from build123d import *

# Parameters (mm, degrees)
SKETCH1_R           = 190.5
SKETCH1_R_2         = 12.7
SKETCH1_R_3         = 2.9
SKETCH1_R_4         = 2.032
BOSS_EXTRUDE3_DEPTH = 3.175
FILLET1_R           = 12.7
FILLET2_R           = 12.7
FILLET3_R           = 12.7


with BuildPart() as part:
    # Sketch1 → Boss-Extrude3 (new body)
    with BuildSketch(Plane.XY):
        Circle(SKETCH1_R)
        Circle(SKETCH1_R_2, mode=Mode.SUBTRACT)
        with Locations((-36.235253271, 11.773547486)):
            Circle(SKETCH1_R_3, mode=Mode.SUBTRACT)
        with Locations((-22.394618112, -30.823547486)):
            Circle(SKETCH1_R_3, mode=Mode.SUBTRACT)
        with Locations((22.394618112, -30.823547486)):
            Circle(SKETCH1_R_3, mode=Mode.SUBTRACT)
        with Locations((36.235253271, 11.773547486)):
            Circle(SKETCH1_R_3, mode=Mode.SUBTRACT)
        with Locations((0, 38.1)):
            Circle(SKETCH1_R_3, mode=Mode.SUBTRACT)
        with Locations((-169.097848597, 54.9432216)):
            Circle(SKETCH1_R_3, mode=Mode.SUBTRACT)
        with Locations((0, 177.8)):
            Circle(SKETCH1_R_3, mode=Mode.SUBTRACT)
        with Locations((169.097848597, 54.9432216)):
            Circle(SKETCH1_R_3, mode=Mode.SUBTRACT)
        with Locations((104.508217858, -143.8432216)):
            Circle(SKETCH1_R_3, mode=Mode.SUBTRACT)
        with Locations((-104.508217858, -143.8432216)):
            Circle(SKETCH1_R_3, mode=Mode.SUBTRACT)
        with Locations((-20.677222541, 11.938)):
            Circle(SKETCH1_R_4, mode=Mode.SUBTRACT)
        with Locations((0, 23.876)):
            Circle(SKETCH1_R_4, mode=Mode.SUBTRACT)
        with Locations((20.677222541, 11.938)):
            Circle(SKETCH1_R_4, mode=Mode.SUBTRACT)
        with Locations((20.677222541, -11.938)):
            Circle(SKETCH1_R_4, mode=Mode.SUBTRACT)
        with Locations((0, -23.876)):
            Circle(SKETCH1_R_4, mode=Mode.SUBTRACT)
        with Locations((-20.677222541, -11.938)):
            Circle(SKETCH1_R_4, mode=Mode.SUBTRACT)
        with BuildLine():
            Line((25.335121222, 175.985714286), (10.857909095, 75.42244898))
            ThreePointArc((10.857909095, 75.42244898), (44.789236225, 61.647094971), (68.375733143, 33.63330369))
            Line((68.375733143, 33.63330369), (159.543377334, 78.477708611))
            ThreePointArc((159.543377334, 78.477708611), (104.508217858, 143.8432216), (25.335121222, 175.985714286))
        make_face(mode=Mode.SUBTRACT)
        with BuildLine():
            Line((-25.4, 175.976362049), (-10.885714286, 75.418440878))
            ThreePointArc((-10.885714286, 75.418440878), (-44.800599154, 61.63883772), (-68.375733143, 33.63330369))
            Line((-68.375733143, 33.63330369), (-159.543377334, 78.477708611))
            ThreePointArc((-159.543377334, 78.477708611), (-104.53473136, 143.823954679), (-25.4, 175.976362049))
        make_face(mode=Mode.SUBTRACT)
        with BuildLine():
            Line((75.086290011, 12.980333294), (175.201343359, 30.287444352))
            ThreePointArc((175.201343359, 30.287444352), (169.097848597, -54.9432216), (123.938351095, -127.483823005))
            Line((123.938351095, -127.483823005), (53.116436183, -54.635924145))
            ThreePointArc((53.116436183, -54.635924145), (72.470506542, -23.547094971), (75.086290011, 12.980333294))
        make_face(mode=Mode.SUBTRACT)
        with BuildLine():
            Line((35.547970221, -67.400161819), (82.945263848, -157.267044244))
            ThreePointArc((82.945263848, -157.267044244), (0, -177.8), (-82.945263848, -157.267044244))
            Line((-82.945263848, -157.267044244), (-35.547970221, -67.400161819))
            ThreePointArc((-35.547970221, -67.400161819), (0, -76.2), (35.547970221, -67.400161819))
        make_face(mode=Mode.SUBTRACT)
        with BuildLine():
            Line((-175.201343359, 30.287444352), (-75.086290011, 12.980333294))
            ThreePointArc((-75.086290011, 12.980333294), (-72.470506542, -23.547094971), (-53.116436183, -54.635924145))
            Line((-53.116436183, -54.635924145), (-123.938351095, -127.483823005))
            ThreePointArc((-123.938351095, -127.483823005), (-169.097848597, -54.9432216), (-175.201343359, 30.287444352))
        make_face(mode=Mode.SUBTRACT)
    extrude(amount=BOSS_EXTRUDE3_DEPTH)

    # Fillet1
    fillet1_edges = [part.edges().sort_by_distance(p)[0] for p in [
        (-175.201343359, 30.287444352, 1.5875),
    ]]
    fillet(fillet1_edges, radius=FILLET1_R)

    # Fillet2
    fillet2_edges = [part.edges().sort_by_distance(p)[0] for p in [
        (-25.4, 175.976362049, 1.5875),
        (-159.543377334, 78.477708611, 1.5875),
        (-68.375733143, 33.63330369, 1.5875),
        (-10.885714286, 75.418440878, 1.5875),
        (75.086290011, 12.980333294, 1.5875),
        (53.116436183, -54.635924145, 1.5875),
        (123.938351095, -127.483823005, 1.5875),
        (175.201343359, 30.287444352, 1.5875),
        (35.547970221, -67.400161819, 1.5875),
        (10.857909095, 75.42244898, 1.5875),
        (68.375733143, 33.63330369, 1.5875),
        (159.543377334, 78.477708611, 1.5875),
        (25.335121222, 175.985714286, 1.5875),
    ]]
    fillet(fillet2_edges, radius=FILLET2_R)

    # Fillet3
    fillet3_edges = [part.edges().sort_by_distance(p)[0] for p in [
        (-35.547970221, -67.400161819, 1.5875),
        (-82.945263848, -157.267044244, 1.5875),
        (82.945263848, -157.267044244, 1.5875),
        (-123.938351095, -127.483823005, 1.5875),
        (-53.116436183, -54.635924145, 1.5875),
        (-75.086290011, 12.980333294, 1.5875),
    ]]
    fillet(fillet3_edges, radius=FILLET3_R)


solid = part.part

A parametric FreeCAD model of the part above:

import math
import FreeCAD as App
import Part
import Sketcher

V = App.Vector
Q = App.Units.Quantity


def edges_at(feature, points):
    """Names of the edges that pass closest to the given points."""
    edges = feature.Shape.Edges
    near = lambda p: min(range(len(edges)), key=lambda i: edges[i].distToShape(Part.Vertex(*p))[0])
    return sorted({f"Edge{near(p) + 1}" for p in points})

doc = App.newDocument("Part")
body = doc.addObject("PartDesign::Body", "Body")

# Sketch on XY plane
sketch1 = doc.addObject("Sketcher::SketchObject", "Sketch")
body.addObject(sketch1)
sketch1.AttachmentSupport = (doc.XY_Plane, [""])
sketch1.MapMode = "FlatFace"
sketch1.addGeometry([
    Part.Circle(V(0, 0, 0), V(0, 0, 1), 190.5),  # 0
    Part.Circle(V(-104.5, -143.8, 0), V(0, 0, 1), 2.9),  # 1
    Part.ArcOfCircle(Part.Circle(V(0, 0, 0), V(0, 0, 1), 76.2), math.radians(-118), math.radians(-62)),  # 2
    Part.LineSegment(V(35.5, -67.4, 0), V(82.9, -157.3, 0)),  # 3
    Part.ArcOfCircle(Part.Circle(V(0, 0, 0), V(0, 0, 1), 177.8), math.radians(-118), math.radians(-62)),  # 4
    Part.LineSegment(V(-82.9, -157.3, 0), V(-35.5, -67.4, 0)),  # 5
    Part.ArcOfCircle(Part.Circle(V(0, 0, 0), V(0, 0, 1), 177.8), math.radians(170), math.radians(226)),  # 6
    Part.LineSegment(V(-175.2, 30.3, 0), V(-75.1, 13, 0)),  # 7
    Part.ArcOfCircle(Part.Circle(V(0, 0, 0), V(0, 0, 1), 76.2), math.radians(170), math.radians(226)),  # 8
    Part.LineSegment(V(-53.1, -54.6, 0), V(-123.9, -127.5, 0)),  # 9
    Part.Circle(V(-22.4, -30.8, 0), V(0, 0, 1), 2.9),  # 10
    Part.Circle(V(0, -23.9, 0), V(0, 0, 1), 2),  # 11
    Part.Circle(V(-20.7, -11.9, 0), V(0, 0, 1), 2),  # 12
    Part.Circle(V(0, 0, 0), V(0, 0, 1), 12.7),  # 13
    Part.Circle(V(104.5, -143.8, 0), V(0, 0, 1), 2.9),  # 14
    Part.Circle(V(22.4, -30.8, 0), V(0, 0, 1), 2.9),  # 15
    Part.Circle(V(20.7, -11.9, 0), V(0, 0, 1), 2),  # 16
    Part.ArcOfCircle(Part.Circle(V(0, 0, 0), V(0, 0, 1), 76.2), math.radians(-46), math.radians(10)),  # 17
    Part.LineSegment(V(75.1, 13, 0), V(175.2, 30.3, 0)),  # 18
    Part.ArcOfCircle(Part.Circle(V(0, 0, 0), V(0, 0, 1), 177.8), math.radians(-46), math.radians(10)),  # 19
    Part.LineSegment(V(123.9, -127.5, 0), V(53.1, -54.6, 0)),  # 20
    Part.Circle(V(-169.1, 54.9, 0), V(0, 0, 1), 2.9),  # 21
    Part.Circle(V(-36.2, 11.8, 0), V(0, 0, 1), 2.9),  # 22
    Part.Circle(V(-20.7, 11.9, 0), V(0, 0, 1), 2),  # 23
    Part.Circle(V(0, 23.9, 0), V(0, 0, 1), 2),  # 24
    Part.Circle(V(0, 38.1, 0), V(0, 0, 1), 2.9),  # 25
    Part.ArcOfCircle(Part.Circle(V(0, 0, 0), V(0, 0, 1), 177.8), math.radians(98), math.radians(154)),  # 26
    Part.LineSegment(V(-25.4, 176, 0), V(-10.9, 75.4, 0)),  # 27
    Part.ArcOfCircle(Part.Circle(V(0, 0, 0), V(0, 0, 1), 76.2), math.radians(98), math.radians(154)),  # 28
    Part.LineSegment(V(-68.4, 33.6, 0), V(-159.5, 78.5, 0)),  # 29
    Part.Circle(V(0, 177.8, 0), V(0, 0, 1), 2.9),  # 30
    Part.Circle(V(20.7, 11.9, 0), V(0, 0, 1), 2),  # 31
    Part.Circle(V(36.2, 11.8, 0), V(0, 0, 1), 2.9),  # 32
    Part.Circle(V(169.1, 54.9, 0), V(0, 0, 1), 2.9),  # 33
    Part.LineSegment(V(10.9, 75.4, 0), V(25.3, 176, 0)),  # 34
    Part.ArcOfCircle(Part.Circle(V(0, 0, 0), V(0, 0, 1), 177.8), math.radians(26), math.radians(82)),  # 35
    Part.LineSegment(V(159.5, 78.5, 0), V(68.4, 33.6, 0)),  # 36
    Part.ArcOfCircle(Part.Circle(V(0, 0, 0), V(0, 0, 1), 76.2), math.radians(26), math.radians(82)),  # 37
], False)
sketch1.addConstraint([
    Sketcher.Constraint("Coincident", 2, 2, 3, 1),
    Sketcher.Constraint("Coincident", 3, 2, 4, 2),
    Sketcher.Constraint("Coincident", 4, 1, 5, 1),
    Sketcher.Constraint("Coincident", 5, 2, 2, 1),
    Sketcher.Constraint("Coincident", 6, 1, 7, 1),
    Sketcher.Constraint("Coincident", 7, 2, 8, 1),
    Sketcher.Constraint("Coincident", 8, 2, 9, 1),
    Sketcher.Constraint("Coincident", 9, 2, 6, 2),
    Sketcher.Constraint("Coincident", 17, 2, 18, 1),
    Sketcher.Constraint("Coincident", 18, 2, 19, 2),
    Sketcher.Constraint("Coincident", 19, 1, 20, 1),
    Sketcher.Constraint("Coincident", 20, 2, 17, 1),
    Sketcher.Constraint("Coincident", 26, 1, 27, 1),
    Sketcher.Constraint("Coincident", 27, 2, 28, 1),
    Sketcher.Constraint("Coincident", 28, 2, 29, 1),
    Sketcher.Constraint("Coincident", 29, 2, 26, 2),
    Sketcher.Constraint("Coincident", 34, 2, 35, 2),
    Sketcher.Constraint("Coincident", 35, 1, 36, 1),
    Sketcher.Constraint("Coincident", 36, 2, 37, 1),
    Sketcher.Constraint("Coincident", 37, 2, 34, 1),
    Sketcher.Constraint("Coincident", 0, 3, -1, 1),
    Sketcher.Constraint("Coincident", 2, 3, -1, 1),
    Sketcher.Constraint("Coincident", 4, 3, -1, 1),
    Sketcher.Constraint("Coincident", 6, 3, -1, 1),
    Sketcher.Constraint("Coincident", 8, 3, -1, 1),
    Sketcher.Constraint("Coincident", 13, 3, -1, 1),
    Sketcher.Constraint("Coincident", 17, 3, -1, 1),
    Sketcher.Constraint("Coincident", 19, 3, -1, 1),
    Sketcher.Constraint("Coincident", 26, 3, -1, 1),
    Sketcher.Constraint("Coincident", 28, 3, -1, 1),
    Sketcher.Constraint("Coincident", 35, 3, -1, 1),
    Sketcher.Constraint("Coincident", 37, 3, -1, 1),
    Sketcher.Constraint("Equal", 4, 6),
    Sketcher.Constraint("Equal", 2, 8),
    Sketcher.Constraint("Equal", 1, 10),
    Sketcher.Constraint("Equal", 11, 12),
    Sketcher.Constraint("Equal", 10, 14),
    Sketcher.Constraint("Equal", 14, 15),
    Sketcher.Constraint("Equal", 12, 16),
    Sketcher.Constraint("Equal", 8, 17),
    Sketcher.Constraint("Equal", 6, 19),
    Sketcher.Constraint("Equal", 15, 21),
    Sketcher.Constraint("Equal", 21, 22),
    Sketcher.Constraint("Equal", 16, 23),
    Sketcher.Constraint("Equal", 23, 24),
    Sketcher.Constraint("Equal", 22, 25),
    Sketcher.Constraint("Equal", 19, 26),
    Sketcher.Constraint("Equal", 17, 28),
    Sketcher.Constraint("Equal", 25, 30),
    Sketcher.Constraint("Equal", 24, 31),
    Sketcher.Constraint("Equal", 30, 32),
    Sketcher.Constraint("Equal", 32, 33),
    Sketcher.Constraint("Equal", 26, 35),
    Sketcher.Constraint("Equal", 28, 37),
    Sketcher.Constraint("Symmetric", 16, 3, 23, 3, -1, 1),
    Sketcher.Constraint("Symmetric", 11, 3, 24, 3, -1, 1),
    Sketcher.Constraint("Symmetric", 12, 3, 31, 3, -1, 1),
    Sketcher.Constraint("Symmetric", 1, 3, 14, 3, -2),
    Sketcher.Constraint("Symmetric", 10, 3, 15, 3, -2),
    Sketcher.Constraint("Symmetric", 12, 3, 16, 3, -2),
    Sketcher.Constraint("Symmetric", 22, 3, 32, 3, -2),
    Sketcher.Constraint("Symmetric", 21, 3, 33, 3, -2),
    Sketcher.Constraint("PointOnObject", 11, 3, -2),
    Sketcher.Constraint("PointOnObject", 25, 3, -2),
    Sketcher.Constraint("PointOnObject", 30, 3, -2),
    Sketcher.Constraint("Horizontal", 3, 2, 4, 1),
    Sketcher.Constraint("Horizontal", 2, 2, 5, 2),
    Sketcher.Constraint("Horizontal", 7, 2, 17, 2),
    Sketcher.Constraint("Horizontal", 6, 1, 18, 2),
    Sketcher.Constraint("Horizontal", 9, 2, 19, 1),
    Sketcher.Constraint("Horizontal", 8, 2, 20, 2),
    Sketcher.Constraint("Horizontal", 29, 2, 35, 1),
    Sketcher.Constraint("Horizontal", 28, 2, 36, 2),
    Sketcher.Constraint("Diameter", 0, Q("15 in")),
    Sketcher.Constraint("Diameter", 13, Q("1 in")),
    Sketcher.Constraint("Radius", 2, Q("3 in")),
    Sketcher.Constraint("Radius", 4, Q("7 in")),
    Sketcher.Constraint("Diameter", 11, Q("0.16 in")),
    Sketcher.Constraint("DistanceY", -1, 1, 30, 3, Q("7 in")),
    Sketcher.Constraint("DistanceX", 26, 1, -1, 1, Q("1 in")),
    Sketcher.Constraint("DistanceY", -1, 1, 25, 3, Q("1.5 in")),
    Sketcher.Constraint("Diameter", 1, Q("5.8 mm")),
    Sketcher.Constraint("DistanceY", 11, 3, -1, 1, Q("0.94 in")),
    Sketcher.Constraint("DistanceY", 12, 3, -1, 1, Q("0.47 in")),
    Sketcher.Constraint("DistanceY", 6, 1, 21, 3, Q("0.9706999 in")),
    Sketcher.Constraint("DistanceY", 1, 3, 9, 2, Q("16.359399 mm")),
    Sketcher.Constraint("DistanceY", 9, 2, 8, 2, Q("72.847899 mm")),
    Sketcher.Constraint("DistanceY", 32, 3, 37, 2, Q("63.648901 mm")),
    Sketcher.Constraint("DistanceY", 1, 3, -1, 1, Q("143.843222 mm")),
    Sketcher.Constraint("DistanceX", 10, 3, -1, 1, Q("22.394618 mm")),
    Sketcher.Constraint("DistanceX", 21, 3, -1, 1, Q("169.097849 mm")),
    Sketcher.Constraint("DistanceY", -1, 1, 21, 3, Q("54.943222 mm")),
    Sketcher.Constraint("DistanceX", -1, 1, 2, 2, Q("35.54797 mm")),
    Sketcher.Constraint("DistanceX", 7, 2, -1, 1, Q("75.08629 mm")),
    Sketcher.Constraint("DistanceY", -1, 1, 27, 2, Q("75.418441 mm")),
    Sketcher.Constraint("DistanceY", -1, 1, 29, 2, Q("78.477709 mm")),
    Sketcher.Constraint("DistanceX", -1, 1, 34, 2, Q("25.335121 mm")),
    Sketcher.Constraint("DistanceX", -1, 1, 37, 2, Q("10.857909 mm")),
    Sketcher.Constraint("DistanceY", 10, 3, 21, 3, Q("85.766769 mm")),
    Sketcher.Constraint("DistanceX", 22, 3, 12, 3, Q("15.558031 mm")),
    Sketcher.Constraint("DistanceX", 16, 3, 3, 2, Q("62.268041 mm")),
    Sketcher.Constraint("DistanceX", 6, 1, 22, 3, Q("138.96609 mm")),
    Sketcher.Constraint("DistanceY", 7, 2, 28, 2, Q("20.65297 mm")),
    Sketcher.Constraint("DistanceX", 1, 3, -1, 1, Q("104.508218 mm")),
])
pad1 = doc.addObject("PartDesign::Pad", "Pad")
body.addObject(pad1)
pad1.Profile = sketch1
pad1.Length = Q("0.125 in")
doc.recompute()

fillet = doc.addObject("PartDesign::Fillet", "Fillet")
body.addObject(fillet)
fillet.Base = (pad1, edges_at(pad1, [(-175.201, 30.287, 1.587)]))
fillet.Radius = Q("0.5 in")
doc.recompute()

fillet2 = doc.addObject("PartDesign::Fillet", "Fillet001")
body.addObject(fillet2)
fillet2.Base = (fillet, edges_at(fillet, [
    (-25.4, 175.976, 1.587),
    (-159.543, 78.478, 1.587),
    (-68.376, 33.633, 1.587),
    (-10.886, 75.418, 1.587),
    (75.086, 12.98, 1.587),
    (53.116, -54.636, 1.587),
    (123.938, -127.484, 1.587),
    (175.201, 30.287, 1.587),
    (35.548, -67.4, 1.587),
    (10.858, 75.422, 1.587),
    (68.376, 33.633, 1.587),
    (159.543, 78.478, 1.587),
    (25.335, 175.986, 1.587),
]))
fillet2.Radius = Q("0.5 in")
doc.recompute()

fillet3 = doc.addObject("PartDesign::Fillet", "Fillet002")
body.addObject(fillet3)
fillet3.Base = (fillet2, edges_at(fillet2, [
    (-35.548, -67.4, 1.587),
    (-82.945, -157.267, 1.587),
    (82.945, -157.267, 1.587),
    (-123.938, -127.484, 1.587),
    (-53.116, -54.636, 1.587),
    (-75.086, 12.98, 1.587),
]))
fillet3.Radius = Q("0.5 in")

doc.recompute()
